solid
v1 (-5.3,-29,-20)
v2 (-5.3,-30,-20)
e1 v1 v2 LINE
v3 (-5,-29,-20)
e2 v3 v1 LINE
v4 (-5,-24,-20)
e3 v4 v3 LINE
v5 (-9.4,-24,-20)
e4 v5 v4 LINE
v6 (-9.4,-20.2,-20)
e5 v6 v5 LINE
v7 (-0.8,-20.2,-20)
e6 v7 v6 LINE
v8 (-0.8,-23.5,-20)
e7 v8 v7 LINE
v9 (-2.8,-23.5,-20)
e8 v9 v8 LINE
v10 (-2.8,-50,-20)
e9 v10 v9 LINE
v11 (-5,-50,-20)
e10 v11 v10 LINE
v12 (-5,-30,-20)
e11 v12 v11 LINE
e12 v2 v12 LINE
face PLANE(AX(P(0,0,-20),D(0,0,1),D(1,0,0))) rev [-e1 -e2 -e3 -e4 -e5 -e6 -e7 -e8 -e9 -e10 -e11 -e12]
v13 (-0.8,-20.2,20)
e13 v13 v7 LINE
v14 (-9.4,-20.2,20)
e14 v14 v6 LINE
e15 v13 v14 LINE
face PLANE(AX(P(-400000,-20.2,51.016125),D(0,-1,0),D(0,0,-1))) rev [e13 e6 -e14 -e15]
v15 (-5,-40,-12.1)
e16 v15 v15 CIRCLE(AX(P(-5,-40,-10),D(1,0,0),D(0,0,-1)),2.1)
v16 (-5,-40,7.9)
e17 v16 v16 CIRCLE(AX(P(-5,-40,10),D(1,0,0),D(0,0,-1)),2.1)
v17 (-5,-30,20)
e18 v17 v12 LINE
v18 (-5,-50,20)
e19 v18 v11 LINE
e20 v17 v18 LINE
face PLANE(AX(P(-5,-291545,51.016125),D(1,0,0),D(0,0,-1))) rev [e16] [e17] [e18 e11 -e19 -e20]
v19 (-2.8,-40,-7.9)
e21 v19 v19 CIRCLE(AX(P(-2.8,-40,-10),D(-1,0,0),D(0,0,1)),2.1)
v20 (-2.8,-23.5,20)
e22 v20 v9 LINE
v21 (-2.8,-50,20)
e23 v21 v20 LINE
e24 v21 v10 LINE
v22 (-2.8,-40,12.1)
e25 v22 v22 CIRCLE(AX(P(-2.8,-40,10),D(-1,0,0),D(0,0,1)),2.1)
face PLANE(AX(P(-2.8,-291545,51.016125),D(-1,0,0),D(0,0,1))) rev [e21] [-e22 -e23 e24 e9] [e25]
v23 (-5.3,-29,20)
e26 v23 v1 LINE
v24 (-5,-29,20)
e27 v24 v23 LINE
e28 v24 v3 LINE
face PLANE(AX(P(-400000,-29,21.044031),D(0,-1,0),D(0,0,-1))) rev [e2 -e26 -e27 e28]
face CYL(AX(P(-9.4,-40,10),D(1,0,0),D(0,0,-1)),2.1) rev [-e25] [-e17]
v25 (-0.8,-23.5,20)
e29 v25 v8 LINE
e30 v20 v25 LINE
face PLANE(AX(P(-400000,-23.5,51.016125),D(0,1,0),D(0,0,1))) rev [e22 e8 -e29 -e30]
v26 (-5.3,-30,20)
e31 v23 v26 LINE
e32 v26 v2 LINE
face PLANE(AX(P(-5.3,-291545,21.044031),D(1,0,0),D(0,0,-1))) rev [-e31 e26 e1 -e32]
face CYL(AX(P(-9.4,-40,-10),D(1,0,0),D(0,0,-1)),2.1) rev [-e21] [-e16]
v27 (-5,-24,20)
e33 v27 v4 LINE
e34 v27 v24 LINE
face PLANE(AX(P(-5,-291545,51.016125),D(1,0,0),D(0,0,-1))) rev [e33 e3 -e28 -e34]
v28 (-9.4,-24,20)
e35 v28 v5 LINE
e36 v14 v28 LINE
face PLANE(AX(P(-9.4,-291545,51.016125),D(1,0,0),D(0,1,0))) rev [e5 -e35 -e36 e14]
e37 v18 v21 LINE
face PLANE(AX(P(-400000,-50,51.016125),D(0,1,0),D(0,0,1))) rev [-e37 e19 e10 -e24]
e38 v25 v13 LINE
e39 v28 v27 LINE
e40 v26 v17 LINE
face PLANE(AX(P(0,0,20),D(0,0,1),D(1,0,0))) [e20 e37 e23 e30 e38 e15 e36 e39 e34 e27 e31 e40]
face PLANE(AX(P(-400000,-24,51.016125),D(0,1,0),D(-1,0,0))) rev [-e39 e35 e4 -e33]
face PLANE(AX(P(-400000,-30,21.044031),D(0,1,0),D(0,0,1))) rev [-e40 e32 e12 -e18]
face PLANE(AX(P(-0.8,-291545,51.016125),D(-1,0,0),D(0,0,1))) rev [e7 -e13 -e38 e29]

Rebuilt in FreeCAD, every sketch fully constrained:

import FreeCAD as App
import Part
import Sketcher


def add_polygon(sketch, points):
    """Adds a closed chain of lines whose ends are joined by coincident constraints."""
    first, n = sketch.GeometryCount, len(points)
    for a, b in zip(points, points[1:] + points[:1]):
        sketch.addGeometry(Part.LineSegment(App.Vector(*a, 0), App.Vector(*b, 0)), False)
    for i in range(n):
        sketch.addConstraint(Sketcher.Constraint("Coincident", first + i, 2, first + (i + 1) % n, 1))

doc = App.newDocument("Part")
body = doc.addObject("PartDesign::Body", "Body")

# Sketch on XY plane
sketch1 = body.newObject("Sketcher::SketchObject", "Sketch")
sketch1.AttachmentSupport = (doc.getObject("XY_Plane"), [""])
sketch1.MapMode = "FlatFace"
sketch1.AttachmentOffset = App.Placement(App.Vector(0, 0, -20), App.Rotation())
add_polygon(sketch1, [(-9.4, -24), (-5, -24), (-5, -50), (-2.8, -50), (-2.8, -23.5), (-0.8, -23.5), (-0.8, -20.2), (-9.4, -20.2)])  # lines 0-7
sketch1.addConstraint([
    Sketcher.Constraint("Horizontal", 0),
    Sketcher.Constraint("Vertical", 1),
    Sketcher.Constraint("Horizontal", 2),
    Sketcher.Constraint("Vertical", 3),
    Sketcher.Constraint("Horizontal", 4),
    Sketcher.Constraint("Vertical", 5),
    Sketcher.Constraint("Horizontal", 6),
    Sketcher.Constraint("Vertical", 7),
    Sketcher.Constraint("DistanceX", 4, 1, 4, 2, 2.0),
    Sketcher.Constraint("DistanceY", 1, 2, 1, 1, 26.0),
    Sketcher.Constraint("DistanceX", 0, 1, 0, 2, 4.4),
    Sketcher.Constraint("DistanceX", 2, 1, 2, 2, 2.2),
    Sketcher.Constraint("DistanceY", 3, 1, 3, 2, 26.5),
    Sketcher.Constraint("DistanceY", 5, 1, 5, 2, 3.3),
    Sketcher.Constraint("DistanceX", 0, 2, -1, 1, 5.0),
    Sketcher.Constraint("DistanceY", 0, 2, -1, 1, 24.0),
])
pad1 = body.newObject("PartDesign::Pad", "Pad")
pad1.Profile = sketch1
pad1.Length = 40

# Sketch on XY plane
sketch2 = body.newObject("Sketcher::SketchObject", "Sketch001")
sketch2.AttachmentSupport = (doc.getObject("XY_Plane"), [""])
sketch2.MapMode = "FlatFace"
sketch2.AttachmentOffset = App.Placement(App.Vector(0, 0, -20), App.Rotation())
add_polygon(sketch2, [(-5.3, -29), (-5.3, -30), (-5, -30), (-5, -29)])  # lines 0-3
sketch2.addConstraint([
    Sketcher.Constraint("Vertical", 0),
    Sketcher.Constraint("Horizontal", 1),
    Sketcher.Constraint("Vertical", 2),
    Sketcher.Constraint("Horizontal", 3),
    Sketcher.Constraint("DistanceY", 0, 2, 0, 1, 1.0),
    Sketcher.Constraint("DistanceX", 1, 1, 1, 2, 0.3),
    Sketcher.Constraint("DistanceY", 0, 2, -1, 1, 30.0),
    Sketcher.Constraint("DistanceX", 1, 2, -1, 1, 5.0),
])
pad2 = body.newObject("PartDesign::Pad", "Pad001")
pad2.Profile = sketch2
pad2.Length = 40

# Sketch on YZ plane
sketch3 = body.newObject("Sketcher::SketchObject", "Sketch002")
sketch3.AttachmentSupport = (doc.getObject("YZ_Plane"), [""])
sketch3.MapMode = "FlatFace"
sketch3.addGeometry([
    Part.Circle(App.Vector(-40, -10, 0), App.Vector(0, 0, 1), 2.1),
    Part.Circle(App.Vector(-40, 10, 0), App.Vector(0, 0, 1), 2.1),
], False)
sketch3.addConstraint([
    Sketcher.Constraint("Equal", 0, 1),
    Sketcher.Constraint("Symmetric", 0, 3, 1, 3, -1),
    Sketcher.Constraint("Diameter", 0, 4.2),
    Sketcher.Constraint("DistanceX", 0, 3, -1, 1, 40.0),
    Sketcher.Constraint("DistanceY", 0, 3, -1, 1, 10.0),
])
pocket1 = body.newObject("PartDesign::Pocket", "Pocket")
pocket1.Profile = sketch3
pocket1.Type = "ThroughAll"
pocket1.Midplane = True

doc.recompute()
